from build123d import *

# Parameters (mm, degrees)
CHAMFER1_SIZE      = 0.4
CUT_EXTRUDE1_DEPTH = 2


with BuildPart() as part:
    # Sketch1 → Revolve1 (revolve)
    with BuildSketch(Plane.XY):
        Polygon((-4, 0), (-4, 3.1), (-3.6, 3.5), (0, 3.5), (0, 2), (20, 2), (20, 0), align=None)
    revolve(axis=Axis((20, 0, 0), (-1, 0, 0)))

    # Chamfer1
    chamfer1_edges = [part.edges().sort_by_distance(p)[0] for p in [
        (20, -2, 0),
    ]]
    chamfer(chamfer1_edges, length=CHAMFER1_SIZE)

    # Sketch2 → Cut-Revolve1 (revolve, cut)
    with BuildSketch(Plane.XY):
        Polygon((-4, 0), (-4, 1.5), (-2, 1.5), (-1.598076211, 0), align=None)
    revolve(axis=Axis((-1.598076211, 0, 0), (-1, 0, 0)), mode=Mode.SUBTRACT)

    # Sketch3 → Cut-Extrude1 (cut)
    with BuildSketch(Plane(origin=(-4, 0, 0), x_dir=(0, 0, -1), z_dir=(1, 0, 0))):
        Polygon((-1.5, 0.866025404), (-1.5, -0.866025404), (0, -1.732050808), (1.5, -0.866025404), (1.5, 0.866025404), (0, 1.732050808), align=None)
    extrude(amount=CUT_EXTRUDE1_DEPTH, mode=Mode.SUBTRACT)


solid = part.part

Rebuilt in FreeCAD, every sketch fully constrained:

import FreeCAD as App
import Part
import Sketcher

V = App.Vector
Q = App.Units.Quantity


def edges_at(feature, points):
    """Names of the edges that pass closest to the given points."""
    edges = feature.Shape.Edges
    near = lambda p: min(range(len(edges)), key=lambda i: edges[i].distToShape(Part.Vertex(*p))[0])
    return sorted({f"Edge{near(p) + 1}" for p in points})


def add_polygon(sketch, points):
    """Adds a closed chain of lines whose ends are joined by coincident constraints."""
    first, n = sketch.GeometryCount, len(points)
    for a, b in zip(points, points[1:] + points[:1]):
        sketch.addGeometry(Part.LineSegment(App.Vector(*a, 0), App.Vector(*b, 0)), False)
    for i in range(n):
        sketch.addConstraint(Sketcher.Constraint("Coincident", first + i, 2, first + (i + 1) % n, 1))

doc = App.newDocument("Part")
body = doc.addObject("PartDesign::Body", "Body")

# Sketch on XY plane
sketch1 = doc.addObject("Sketcher::SketchObject", "Sketch")
body.addObject(sketch1)
sketch1.AttachmentSupport = (doc.XY_Plane, [""])
sketch1.MapMode = "FlatFace"
add_polygon(sketch1, [(-4, 3.1), (-4, 0), (20, 0), (20, 2), (0, 2), (0, 3.5), (-3.6, 3.5)])  # lines 0-6
sketch1.addConstraint([
    Sketcher.Constraint("Vertical", 0),
    Sketcher.Constraint("Horizontal", 1),
    Sketcher.Constraint("Vertical", 2),
    Sketcher.Constraint("Horizontal", 3),
    Sketcher.Constraint("Vertical", 4),
    Sketcher.Constraint("Horizontal", 5),
    Sketcher.Constraint("PointOnObject", 0, 2, -1),
    Sketcher.Constraint("PointOnObject", 3, 2, -2),
    Sketcher.Constraint("DistanceX", 1, 1, 1, 2, Q("24 mm")),
    Sketcher.Constraint("DistanceX", 3, 2, 3, 1, Q("20 mm")),
    Sketcher.Constraint("DistanceY", 2, 1, 2, 2, Q("2 mm")),
    Sketcher.Constraint("Angle", 6, Q("-135 deg")),
    Sketcher.Constraint("DistanceX", 5, 2, 5, 1, Q("3.6 mm")),
    Sketcher.Constraint("DistanceY", 0, 2, 0, 1, Q("3.1 mm")),
])
revolution = doc.addObject("PartDesign::Revolution", "Revolution")
body.addObject(revolution)
revolution.Profile = sketch1
revolution.ReferenceAxis = (sketch1, ["H_Axis"])
revolution.Angle = 360
doc.recompute()

chamfer = doc.addObject("PartDesign::Chamfer", "Chamfer")
body.addObject(chamfer)
chamfer.Base = (revolution, edges_at(revolution, [(20, -2, 0)]))
chamfer.Size = 0.4

# Sketch on XY plane
sketch2 = doc.addObject("Sketcher::SketchObject", "Sketch001")
body.addObject(sketch2)
sketch2.AttachmentSupport = (doc.XY_Plane, [""])
sketch2.MapMode = "FlatFace"
add_polygon(sketch2, [(-4, 1.5), (-4, 0), (-1.598076, 0), (-2, 1.5)])  # lines 0-3
sketch2.addConstraint([
    Sketcher.Constraint("Vertical", 0),
    Sketcher.Constraint("Horizontal", 1),
    Sketcher.Constraint("Horizontal", 3),
    Sketcher.Constraint("PointOnObject", 0, 2, -1),
    Sketcher.Constraint("DistanceX", 3, 2, 3, 1, Q("2 mm")),
    Sketcher.Constraint("Angle", 2, Q("105 deg")),
    Sketcher.Constraint("DistanceY", 0, 2, 0, 1, Q("1.5 mm")),
    Sketcher.Constraint("DistanceX", 0, 2, -1, 1, Q("4 mm")),
])
groove = doc.addObject("PartDesign::Groove", "Groove")
body.addObject(groove)
groove.Profile = sketch2
groove.ReferenceAxis = (sketch2, ["H_Axis"])
groove.Angle = 360

# Sketch on YZ plane
sketch3 = doc.addObject("Sketcher::SketchObject", "Sketch002")
body.addObject(sketch3)
sketch3.AttachmentSupport = (doc.YZ_Plane, [""])
sketch3.MapMode = "FlatFace"
sketch3.AttachmentOffset = App.Placement(V(0, 0, -4), App.Rotation())
add_polygon(sketch3, [(0.866025, 1.5), (-0.866025, 1.5), (-1.732051, 0), (-0.866025, -1.5), (0.866025, -1.5), (1.732051, 0)])  # lines 0-5
sketch3.addConstraint([
    Sketcher.Constraint("Horizontal", 0),
    Sketcher.Constraint("Horizontal", 3),
    Sketcher.Constraint("Symmetric", 0, 2, 3, 2, -1, 1),
    Sketcher.Constraint("Symmetric", 1, 2, 4, 2, -1, 1),
    Sketcher.Constraint("PointOnObject", 1, 2, -1),
    Sketcher.Constraint("Parallel", 2, 5),
    Sketcher.Constraint("Vertical", 0, 2, 2, 2),
    Sketcher.Constraint("Angle", 1, Q("-120 deg")),
    Sketcher.Constraint("DistanceY", 2, 2, 0, 2, Q("3 mm")),
    Sketcher.Constraint("DistanceX", 0, 2, 0, 1, Q("1.732051 mm")),
])
pocket1 = doc.addObject("PartDesign::Pocket", "Pocket")
body.addObject(pocket1)
pocket1.Profile = sketch3
pocket1.Length = 2
pocket1.Reversed = True

doc.recompute()
